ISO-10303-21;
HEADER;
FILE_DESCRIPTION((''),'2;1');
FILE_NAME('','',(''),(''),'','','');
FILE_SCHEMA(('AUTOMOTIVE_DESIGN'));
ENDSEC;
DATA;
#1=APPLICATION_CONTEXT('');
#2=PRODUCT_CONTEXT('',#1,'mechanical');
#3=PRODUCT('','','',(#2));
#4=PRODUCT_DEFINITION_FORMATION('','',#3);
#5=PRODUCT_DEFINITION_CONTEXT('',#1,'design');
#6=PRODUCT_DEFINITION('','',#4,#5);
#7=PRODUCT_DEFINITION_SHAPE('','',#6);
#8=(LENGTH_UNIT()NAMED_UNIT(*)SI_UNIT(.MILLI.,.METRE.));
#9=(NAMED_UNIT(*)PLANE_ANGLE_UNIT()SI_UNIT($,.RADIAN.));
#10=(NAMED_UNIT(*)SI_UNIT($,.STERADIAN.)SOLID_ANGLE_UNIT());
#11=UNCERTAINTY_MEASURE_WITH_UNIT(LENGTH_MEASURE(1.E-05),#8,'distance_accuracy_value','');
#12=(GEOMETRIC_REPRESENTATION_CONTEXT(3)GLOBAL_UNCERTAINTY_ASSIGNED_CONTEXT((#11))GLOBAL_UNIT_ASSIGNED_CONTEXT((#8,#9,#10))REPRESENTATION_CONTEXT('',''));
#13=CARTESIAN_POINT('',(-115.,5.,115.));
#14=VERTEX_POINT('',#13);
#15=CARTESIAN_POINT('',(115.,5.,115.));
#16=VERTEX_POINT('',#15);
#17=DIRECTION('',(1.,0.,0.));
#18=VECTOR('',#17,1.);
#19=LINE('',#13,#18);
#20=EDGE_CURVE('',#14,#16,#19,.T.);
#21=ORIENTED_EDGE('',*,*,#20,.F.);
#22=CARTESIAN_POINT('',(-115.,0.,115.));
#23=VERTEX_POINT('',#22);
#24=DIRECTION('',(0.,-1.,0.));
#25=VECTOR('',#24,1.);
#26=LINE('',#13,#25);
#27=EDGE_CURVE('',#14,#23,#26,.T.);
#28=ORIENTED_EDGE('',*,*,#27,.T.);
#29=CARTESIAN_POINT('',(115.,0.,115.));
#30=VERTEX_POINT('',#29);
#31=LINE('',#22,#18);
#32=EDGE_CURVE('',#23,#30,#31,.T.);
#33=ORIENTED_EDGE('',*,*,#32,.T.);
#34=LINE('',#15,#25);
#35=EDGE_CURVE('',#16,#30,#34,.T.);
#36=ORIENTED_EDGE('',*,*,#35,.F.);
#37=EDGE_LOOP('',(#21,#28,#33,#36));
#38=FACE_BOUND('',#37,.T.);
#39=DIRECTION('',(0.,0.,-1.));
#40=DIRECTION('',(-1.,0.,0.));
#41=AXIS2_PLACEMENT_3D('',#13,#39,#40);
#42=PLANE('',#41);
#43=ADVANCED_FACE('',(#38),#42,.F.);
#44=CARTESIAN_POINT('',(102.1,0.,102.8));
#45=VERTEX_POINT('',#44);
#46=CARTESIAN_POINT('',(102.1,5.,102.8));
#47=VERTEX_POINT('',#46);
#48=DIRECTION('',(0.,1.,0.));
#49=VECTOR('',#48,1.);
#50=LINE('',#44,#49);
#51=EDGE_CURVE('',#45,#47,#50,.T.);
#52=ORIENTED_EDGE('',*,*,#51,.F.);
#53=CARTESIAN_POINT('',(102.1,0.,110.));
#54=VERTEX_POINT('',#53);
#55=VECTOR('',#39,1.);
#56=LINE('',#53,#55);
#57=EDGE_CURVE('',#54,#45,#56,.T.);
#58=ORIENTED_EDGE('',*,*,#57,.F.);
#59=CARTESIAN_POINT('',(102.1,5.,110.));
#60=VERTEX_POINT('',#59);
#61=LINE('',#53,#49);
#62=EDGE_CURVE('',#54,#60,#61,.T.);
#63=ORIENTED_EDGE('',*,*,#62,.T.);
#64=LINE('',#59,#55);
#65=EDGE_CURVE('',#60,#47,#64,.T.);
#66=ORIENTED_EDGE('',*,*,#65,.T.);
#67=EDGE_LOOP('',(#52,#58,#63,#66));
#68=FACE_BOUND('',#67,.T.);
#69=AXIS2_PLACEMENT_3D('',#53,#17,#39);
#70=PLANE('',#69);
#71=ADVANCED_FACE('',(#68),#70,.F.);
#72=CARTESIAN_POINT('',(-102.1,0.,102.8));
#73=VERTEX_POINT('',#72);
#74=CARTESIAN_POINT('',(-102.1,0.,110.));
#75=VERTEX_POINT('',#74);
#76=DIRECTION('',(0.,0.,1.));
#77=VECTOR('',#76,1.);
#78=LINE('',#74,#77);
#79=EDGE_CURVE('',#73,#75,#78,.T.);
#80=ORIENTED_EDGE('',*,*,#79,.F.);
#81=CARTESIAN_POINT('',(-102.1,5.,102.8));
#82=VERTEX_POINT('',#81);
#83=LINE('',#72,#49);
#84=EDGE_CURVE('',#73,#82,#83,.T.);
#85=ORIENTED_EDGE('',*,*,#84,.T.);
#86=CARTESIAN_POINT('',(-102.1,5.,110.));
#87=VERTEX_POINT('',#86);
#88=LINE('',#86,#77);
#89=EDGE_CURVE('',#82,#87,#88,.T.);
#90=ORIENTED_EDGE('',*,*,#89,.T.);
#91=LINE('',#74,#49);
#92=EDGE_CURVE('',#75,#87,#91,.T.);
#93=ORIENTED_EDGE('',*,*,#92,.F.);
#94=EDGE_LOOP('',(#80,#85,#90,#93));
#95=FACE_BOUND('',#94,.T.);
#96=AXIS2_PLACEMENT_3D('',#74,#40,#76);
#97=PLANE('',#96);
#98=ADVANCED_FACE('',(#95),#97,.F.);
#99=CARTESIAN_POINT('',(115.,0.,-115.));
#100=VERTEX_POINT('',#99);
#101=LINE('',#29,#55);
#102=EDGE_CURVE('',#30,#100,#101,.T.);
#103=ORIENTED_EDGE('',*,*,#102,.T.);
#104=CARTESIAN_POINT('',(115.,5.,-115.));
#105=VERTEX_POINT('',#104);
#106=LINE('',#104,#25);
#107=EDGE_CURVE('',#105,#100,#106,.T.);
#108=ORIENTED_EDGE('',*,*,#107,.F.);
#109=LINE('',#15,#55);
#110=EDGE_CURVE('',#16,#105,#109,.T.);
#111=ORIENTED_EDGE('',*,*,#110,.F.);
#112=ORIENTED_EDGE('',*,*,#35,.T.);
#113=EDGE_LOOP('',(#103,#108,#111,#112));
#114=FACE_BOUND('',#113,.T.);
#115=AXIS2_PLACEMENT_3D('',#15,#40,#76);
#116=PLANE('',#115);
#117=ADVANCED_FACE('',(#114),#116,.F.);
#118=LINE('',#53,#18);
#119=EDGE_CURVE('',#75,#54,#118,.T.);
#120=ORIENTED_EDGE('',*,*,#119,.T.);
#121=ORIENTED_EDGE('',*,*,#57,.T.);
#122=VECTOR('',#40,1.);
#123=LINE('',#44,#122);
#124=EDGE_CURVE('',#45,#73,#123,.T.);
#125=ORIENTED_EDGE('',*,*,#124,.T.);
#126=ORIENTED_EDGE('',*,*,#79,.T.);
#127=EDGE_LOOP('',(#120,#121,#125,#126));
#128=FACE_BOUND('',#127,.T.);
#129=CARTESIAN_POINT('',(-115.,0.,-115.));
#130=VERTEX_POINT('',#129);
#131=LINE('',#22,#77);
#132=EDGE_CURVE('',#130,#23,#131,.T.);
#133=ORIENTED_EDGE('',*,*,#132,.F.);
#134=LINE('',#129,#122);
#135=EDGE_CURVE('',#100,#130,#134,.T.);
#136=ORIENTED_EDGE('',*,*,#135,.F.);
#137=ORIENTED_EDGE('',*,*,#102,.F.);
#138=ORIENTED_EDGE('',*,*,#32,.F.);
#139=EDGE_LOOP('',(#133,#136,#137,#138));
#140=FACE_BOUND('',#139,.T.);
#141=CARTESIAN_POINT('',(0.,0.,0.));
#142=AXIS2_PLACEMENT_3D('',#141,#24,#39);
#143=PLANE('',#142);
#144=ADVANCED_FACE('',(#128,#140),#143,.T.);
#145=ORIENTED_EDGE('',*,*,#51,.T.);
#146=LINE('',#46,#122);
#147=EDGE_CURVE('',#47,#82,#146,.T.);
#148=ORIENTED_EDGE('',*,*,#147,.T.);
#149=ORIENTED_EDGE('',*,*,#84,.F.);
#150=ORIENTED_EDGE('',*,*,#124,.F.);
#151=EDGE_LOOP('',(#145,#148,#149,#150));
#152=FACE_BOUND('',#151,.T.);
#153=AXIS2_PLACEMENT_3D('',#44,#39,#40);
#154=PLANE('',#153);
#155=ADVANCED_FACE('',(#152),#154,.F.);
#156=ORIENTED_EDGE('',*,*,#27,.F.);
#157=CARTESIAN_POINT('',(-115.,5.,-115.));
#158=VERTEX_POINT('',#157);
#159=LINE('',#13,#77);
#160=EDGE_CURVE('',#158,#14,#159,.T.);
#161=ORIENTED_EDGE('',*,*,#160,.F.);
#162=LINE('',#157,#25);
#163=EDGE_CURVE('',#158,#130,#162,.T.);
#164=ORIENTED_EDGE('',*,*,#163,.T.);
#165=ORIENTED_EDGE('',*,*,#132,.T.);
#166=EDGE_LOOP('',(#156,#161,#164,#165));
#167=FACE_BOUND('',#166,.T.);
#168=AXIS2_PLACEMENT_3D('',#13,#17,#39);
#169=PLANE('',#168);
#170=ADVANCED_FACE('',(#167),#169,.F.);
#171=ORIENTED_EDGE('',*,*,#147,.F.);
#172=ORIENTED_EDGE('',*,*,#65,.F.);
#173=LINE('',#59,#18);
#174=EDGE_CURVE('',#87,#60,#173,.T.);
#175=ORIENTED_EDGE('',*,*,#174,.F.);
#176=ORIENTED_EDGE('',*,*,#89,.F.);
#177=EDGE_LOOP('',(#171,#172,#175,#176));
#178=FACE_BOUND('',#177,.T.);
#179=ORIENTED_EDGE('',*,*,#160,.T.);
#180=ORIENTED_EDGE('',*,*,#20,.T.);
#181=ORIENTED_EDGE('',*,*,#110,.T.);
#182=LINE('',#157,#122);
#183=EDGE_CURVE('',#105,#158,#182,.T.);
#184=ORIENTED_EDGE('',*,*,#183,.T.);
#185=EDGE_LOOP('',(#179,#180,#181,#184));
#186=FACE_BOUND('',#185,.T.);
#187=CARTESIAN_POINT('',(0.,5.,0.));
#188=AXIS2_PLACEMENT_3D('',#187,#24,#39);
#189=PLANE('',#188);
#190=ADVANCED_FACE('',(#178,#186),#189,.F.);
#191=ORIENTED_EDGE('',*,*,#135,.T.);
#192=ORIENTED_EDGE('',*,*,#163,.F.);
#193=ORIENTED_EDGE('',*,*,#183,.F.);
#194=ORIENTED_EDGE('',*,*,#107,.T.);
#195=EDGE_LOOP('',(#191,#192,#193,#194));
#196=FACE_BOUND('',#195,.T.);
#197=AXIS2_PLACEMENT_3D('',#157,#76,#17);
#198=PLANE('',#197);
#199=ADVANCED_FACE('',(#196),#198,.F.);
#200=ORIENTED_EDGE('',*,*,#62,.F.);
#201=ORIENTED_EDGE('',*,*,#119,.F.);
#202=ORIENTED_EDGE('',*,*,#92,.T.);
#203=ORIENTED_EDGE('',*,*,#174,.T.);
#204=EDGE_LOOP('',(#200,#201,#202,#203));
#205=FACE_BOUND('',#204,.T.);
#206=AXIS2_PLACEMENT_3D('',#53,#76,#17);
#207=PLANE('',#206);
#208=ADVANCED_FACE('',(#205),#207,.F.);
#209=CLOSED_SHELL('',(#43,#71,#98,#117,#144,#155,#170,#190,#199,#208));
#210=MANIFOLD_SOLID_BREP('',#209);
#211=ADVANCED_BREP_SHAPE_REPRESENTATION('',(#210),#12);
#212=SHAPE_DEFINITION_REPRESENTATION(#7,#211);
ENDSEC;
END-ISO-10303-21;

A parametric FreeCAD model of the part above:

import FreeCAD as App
import Part
import Sketcher

V = App.Vector

doc = App.newDocument("Part")
params = doc.addObject("Spreadsheet::Sheet", "Params")
for row, (alias, value) in enumerate([
    ("sketch1_width", "230 mm"),
    ("pad1_length", "5 mm"),
    ("sketch2_width", "204.2 mm"),
    ("sketch2_height", "7.2 mm"),
], start=1):
    params.set(f"A{row}", alias)
    params.set(f"B{row}", "=" + value)
    params.setAlias(f"B{row}", alias)

body = doc.addObject("PartDesign::Body", "Body")

sketch1 = body.newObject("Sketcher::SketchObject", "Sketch")
sketch1.AttachmentSupport = (doc.getObject("XZ_Plane"), [""])
sketch1.MapMode = "FlatFace"
sketch1.addGeometry([
    Part.LineSegment(V(-115, -115, 0), V(-115, 115, 0)),
    Part.LineSegment(V(-115, 115, 0), V(115, 115, 0)),
    Part.LineSegment(V(115, 115, 0), V(115, -115, 0)),
    Part.LineSegment(V(115, -115, 0), V(-115, -115, 0)),
], False)
sketch1.addConstraint([
    Sketcher.Constraint("Coincident", 0, 2, 1, 1),
    Sketcher.Constraint("Coincident", 1, 2, 2, 1),
    Sketcher.Constraint("Coincident", 2, 2, 3, 1),
    Sketcher.Constraint("Coincident", 3, 2, 0, 1),
    Sketcher.Constraint("Vertical", 0),
    Sketcher.Constraint("Horizontal", 1),
    Sketcher.Constraint("Vertical", 2),
    Sketcher.Constraint("Horizontal", 3),
    Sketcher.Constraint("Symmetric", 0, 2, 2, 2, -1, 1),
    Sketcher.Constraint("Equal", 3, 0),
    Sketcher.Constraint("DistanceX", 1, 1, 1, 2, 230.0),
])
sketch1.setExpression("Constraints[10]", "Params.sketch1_width")
pad1 = body.newObject("PartDesign::Pad", "Pad")
pad1.Profile = sketch1
pad1.setExpression("Length", "Params.pad1_length")
pad1.Reversed = True

sketch2 = body.newObject("Sketcher::SketchObject", "Sketch001")
sketch2.AttachmentSupport = (doc.getObject("XZ_Plane"), [""])
sketch2.MapMode = "FlatFace"
sketch2.AttachmentOffset = App.Placement(V(0, 0, -5), App.Rotation())
sketch2.addGeometry([
    Part.LineSegment(V(-102.1, 102.8, 0), V(-102.1, 110, 0)),
    Part.LineSegment(V(-102.1, 110, 0), V(102.1, 110, 0)),
    Part.LineSegment(V(102.1, 110, 0), V(102.1, 102.8, 0)),
    Part.LineSegment(V(102.1, 102.8, 0), V(-102.1, 102.8, 0)),
], False)
sketch2.addConstraint([
    Sketcher.Constraint("Coincident", 0, 2, 1, 1),
    Sketcher.Constraint("Coincident", 1, 2, 2, 1),
    Sketcher.Constraint("Coincident", 2, 2, 3, 1),
    Sketcher.Constraint("Coincident", 3, 2, 0, 1),
    Sketcher.Constraint("Vertical", 0),
    Sketcher.Constraint("Horizontal", 1),
    Sketcher.Constraint("Vertical", 2),
    Sketcher.Constraint("Horizontal", 3),
    Sketcher.Constraint("DistanceX", 1, 1, 1, 2, 204.2),
    Sketcher.Constraint("DistanceY", 0, 1, 0, 2, 7.2),
    Sketcher.Constraint("DistanceY", -1, 1, 0, 2, 110.0),
    Sketcher.Constraint("DistanceX", 0, 2, -1, 1, 102.1),
])
sketch2.setExpression("Constraints[8]", "Params.sketch2_width")
sketch2.setExpression("Constraints[9]", "Params.sketch2_height")
pocket1 = body.newObject("PartDesign::Pocket", "Pocket")
pocket1.Profile = sketch2
pocket1.Type = "ThroughAll"
pocket1.Reversed = True

doc.recompute()
